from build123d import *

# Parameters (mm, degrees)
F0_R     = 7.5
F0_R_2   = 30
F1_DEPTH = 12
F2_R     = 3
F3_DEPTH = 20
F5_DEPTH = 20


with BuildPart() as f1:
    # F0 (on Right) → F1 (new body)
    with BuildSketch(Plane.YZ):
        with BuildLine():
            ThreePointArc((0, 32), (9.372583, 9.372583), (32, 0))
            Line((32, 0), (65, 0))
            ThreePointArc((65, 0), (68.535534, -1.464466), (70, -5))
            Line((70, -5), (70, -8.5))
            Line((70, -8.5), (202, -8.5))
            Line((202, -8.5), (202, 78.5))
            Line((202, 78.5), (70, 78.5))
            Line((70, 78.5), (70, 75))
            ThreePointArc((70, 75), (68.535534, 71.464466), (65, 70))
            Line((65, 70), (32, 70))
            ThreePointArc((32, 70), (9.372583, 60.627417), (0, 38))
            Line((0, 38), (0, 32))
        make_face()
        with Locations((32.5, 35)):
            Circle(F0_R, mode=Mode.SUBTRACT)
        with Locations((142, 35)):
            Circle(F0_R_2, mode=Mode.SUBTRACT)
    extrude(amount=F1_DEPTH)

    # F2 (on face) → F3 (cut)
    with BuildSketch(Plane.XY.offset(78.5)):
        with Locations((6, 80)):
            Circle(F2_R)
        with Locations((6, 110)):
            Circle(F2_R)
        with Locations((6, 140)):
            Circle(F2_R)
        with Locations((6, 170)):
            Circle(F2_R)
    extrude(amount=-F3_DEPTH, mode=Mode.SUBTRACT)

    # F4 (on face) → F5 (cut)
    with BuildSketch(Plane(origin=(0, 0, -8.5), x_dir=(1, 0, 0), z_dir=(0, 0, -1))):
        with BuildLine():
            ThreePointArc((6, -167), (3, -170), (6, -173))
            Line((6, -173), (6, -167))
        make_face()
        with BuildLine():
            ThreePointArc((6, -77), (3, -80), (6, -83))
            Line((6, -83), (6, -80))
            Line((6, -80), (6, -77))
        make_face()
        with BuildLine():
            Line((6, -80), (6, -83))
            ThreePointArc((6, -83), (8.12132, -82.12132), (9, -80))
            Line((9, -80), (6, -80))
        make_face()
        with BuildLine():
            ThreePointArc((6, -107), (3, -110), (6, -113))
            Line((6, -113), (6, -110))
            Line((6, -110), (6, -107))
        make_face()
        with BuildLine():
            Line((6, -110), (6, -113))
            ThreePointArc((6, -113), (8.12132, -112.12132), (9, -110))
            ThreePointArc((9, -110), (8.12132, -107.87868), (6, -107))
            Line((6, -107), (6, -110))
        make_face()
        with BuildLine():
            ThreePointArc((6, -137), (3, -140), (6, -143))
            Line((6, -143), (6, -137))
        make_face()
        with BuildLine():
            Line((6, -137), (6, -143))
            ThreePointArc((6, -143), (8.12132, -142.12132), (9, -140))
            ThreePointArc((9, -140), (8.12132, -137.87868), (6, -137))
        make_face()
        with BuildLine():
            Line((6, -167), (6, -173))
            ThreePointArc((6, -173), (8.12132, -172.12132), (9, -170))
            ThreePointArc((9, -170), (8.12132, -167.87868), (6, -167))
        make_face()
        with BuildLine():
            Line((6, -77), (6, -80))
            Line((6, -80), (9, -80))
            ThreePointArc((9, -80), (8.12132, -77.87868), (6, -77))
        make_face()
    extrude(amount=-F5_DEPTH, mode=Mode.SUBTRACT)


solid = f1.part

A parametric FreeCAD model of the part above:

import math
import FreeCAD as App
import Part
import Sketcher
from FreeCAD import Vector

doc = App.newDocument("Part")
body = doc.addObject("PartDesign::Body", "Body")

sketch1 = body.newObject("Sketcher::SketchObject", "Sketch")
sketch1.AttachmentSupport = (doc.getObject("YZ_Plane"), [""])
sketch1.MapMode = "FlatFace"
sketch1.addGeometry([
    Part.ArcOfCircle(Part.Circle(Vector(32, 32, 0), Vector(0, 0, 1), 32), math.radians(180), math.radians(270)),
    Part.LineSegment(Vector(32, 0, 0), Vector(65, 0, 0)),
    Part.ArcOfCircle(Part.Circle(Vector(65, -5, 0), Vector(0, 0, 1), 5), math.radians(0), math.radians(90)),
    Part.LineSegment(Vector(70, -5, 0), Vector(70, -8.5, 0)),
    Part.LineSegment(Vector(70, -8.5, 0), Vector(202, -8.5, 0)),
    Part.LineSegment(Vector(202, -8.5, 0), Vector(202, 78.5, 0)),
    Part.LineSegment(Vector(202, 78.5, 0), Vector(70, 78.5, 0)),
    Part.LineSegment(Vector(70, 78.5, 0), Vector(70, 75, 0)),
    Part.ArcOfCircle(Part.Circle(Vector(65, 75, 0), Vector(0, 0, 1), 5), math.radians(-90), math.radians(0)),
    Part.LineSegment(Vector(65, 70, 0), Vector(32, 70, 0)),
    Part.ArcOfCircle(Part.Circle(Vector(32, 38, 0), Vector(0, 0, 1), 32), math.radians(90), math.radians(180)),
    Part.LineSegment(Vector(0, 38, 0), Vector(0, 32, 0)),
    Part.Circle(Vector(32.5, 35, 0), Vector(0, 0, 1), 7.5),
    Part.Circle(Vector(142, 35, 0), Vector(0, 0, 1), 30),
], False)
sketch1.addConstraint([
    Sketcher.Constraint("Tangent", 0, 2, 1, 1),
    Sketcher.Constraint("Tangent", 1, 2, 2, 2),
    Sketcher.Constraint("Tangent", 2, 1, 3, 1),
    Sketcher.Constraint("Coincident", 3, 2, 4, 1),
    Sketcher.Constraint("Coincident", 4, 2, 5, 1),
    Sketcher.Constraint("Coincident", 5, 2, 6, 1),
    Sketcher.Constraint("Coincident", 6, 2, 7, 1),
    Sketcher.Constraint("Tangent", 7, 2, 8, 2),
    Sketcher.Constraint("Tangent", 8, 1, 9, 1),
    Sketcher.Constraint("Tangent", 9, 2, 10, 1),
    Sketcher.Constraint("Tangent", 10, 2, 11, 1),
    Sketcher.Constraint("Tangent", 11, 2, 0, 1),
    Sketcher.Constraint("Horizontal", 1),
    Sketcher.Constraint("Vertical", 3),
    Sketcher.Constraint("Horizontal", 4),
    Sketcher.Constraint("Vertical", 5),
    Sketcher.Constraint("Horizontal", 6),
    Sketcher.Constraint("Vertical", 7),
    Sketcher.Constraint("Horizontal", 9),
    Sketcher.Constraint("Vertical", 11),
    Sketcher.Constraint("Equal", 2, 8),
    Sketcher.Constraint("Equal", 0, 10),
    Sketcher.Constraint("PointOnObject", 0, 2, -1),
    Sketcher.Constraint("PointOnObject", 10, 2, -2),
    Sketcher.Constraint("Horizontal", 12, 3, 13, 3),
    Sketcher.Constraint("Vertical", 2, 3, 8, 3),
    Sketcher.Constraint("Equal", 3, 7),
    Sketcher.Constraint("Diameter", 12, 15.0),
    Sketcher.Constraint("Diameter", 13, 60.0),
    Sketcher.Constraint("Radius", 0, 32.0),
    Sketcher.Constraint("Radius", 2, 5.0),
    Sketcher.Constraint("DistanceX", 1, 1, 1, 2, 33.0),
    Sketcher.Constraint("DistanceX", 4, 1, 4, 2, 132.0),
    Sketcher.Constraint("DistanceY", 5, 1, 5, 2, 87.0),
    Sketcher.Constraint("DistanceY", 11, 2, 11, 1, 6.0),
    Sketcher.Constraint("DistanceY", -1, 1, 12, 3, 35.0),
    Sketcher.Constraint("DistanceX", -1, 1, 13, 3, 142.0),
    Sketcher.Constraint("DistanceX", -1, 1, 12, 3, 32.5),
])
pad1 = body.newObject("PartDesign::Pad", "Pad")
pad1.Profile = sketch1
pad1.Length = 12

sketch2 = body.newObject("Sketcher::SketchObject", "Sketch001")
sketch2.AttachmentSupport = (doc.getObject("XY_Plane"), [""])
sketch2.MapMode = "FlatFace"
sketch2.AttachmentOffset = App.Placement(Vector(0, 0, 78.5), App.Rotation())
sketch2.addGeometry([
    Part.Circle(Vector(6, 80, 0), Vector(0, 0, 1), 3),
    Part.Circle(Vector(6, 110, 0), Vector(0, 0, 1), 3),
    Part.Circle(Vector(6, 140, 0), Vector(0, 0, 1), 3),
    Part.Circle(Vector(6, 170, 0), Vector(0, 0, 1), 3),
], False)
sketch2.addConstraint([
    Sketcher.Constraint("Equal", 0, 1),
    Sketcher.Constraint("Equal", 1, 2),
    Sketcher.Constraint("Equal", 2, 3),
    Sketcher.Constraint("Vertical", 0, 3, 1, 3),
    Sketcher.Constraint("Vertical", 1, 3, 2, 3),
    Sketcher.Constraint("Vertical", 2, 3, 3, 3),
    Sketcher.Constraint("Diameter", 0, 6.0),
    Sketcher.Constraint("DistanceX", -1, 1, 0, 3, 6.0),
    Sketcher.Constraint("DistanceY", -1, 1, 0, 3, 80.0),
    Sketcher.Constraint("DistanceY", -1, 1, 1, 3, 110.0),
    Sketcher.Constraint("DistanceY", -1, 1, 2, 3, 140.0),
    Sketcher.Constraint("DistanceY", -1, 1, 3, 3, 170.0),
])
pocket1 = body.newObject("PartDesign::Pocket", "Pocket")
pocket1.Profile = sketch2
pocket1.Length = 20

sketch3 = body.newObject("Sketcher::SketchObject", "Sketch002")
sketch3.AttachmentSupport = (doc.getObject("XY_Plane"), [""])
sketch3.MapMode = "FlatFace"
sketch3.AttachmentOffset = App.Placement(Vector(0, 0, -8.5), App.Rotation())
sketch3.addGeometry([
    Part.ArcOfCircle(Part.Circle(Vector(6, 170, 0), Vector(0, 0, 1), 3), math.radians(90), math.radians(270)),
    Part.ArcOfCircle(Part.Circle(Vector(6, 170, 0), Vector(0, 0, 1), 3), math.radians(0), math.radians(90)),
    Part.ArcOfCircle(Part.Circle(Vector(6, 170, 0), Vector(0, 0, 1), 3), math.radians(-90), math.radians(0)),
    Part.ArcOfCircle(Part.Circle(Vector(6, 80, 0), Vector(0, 0, 1), 3), math.radians(90), math.radians(270)),
    Part.ArcOfCircle(Part.Circle(Vector(6, 80, 0), Vector(0, 0, 1), 3), math.radians(0), math.radians(90)),
    Part.ArcOfCircle(Part.Circle(Vector(6, 80, 0), Vector(0, 0, 1), 3), math.radians(-90), math.radians(0)),
    Part.ArcOfCircle(Part.Circle(Vector(6, 110, 0), Vector(0, 0, 1), 3), math.radians(90), math.radians(270)),
    Part.ArcOfCircle(Part.Circle(Vector(6, 110, 0), Vector(0, 0, 1), 3), math.radians(0), math.radians(90)),
    Part.ArcOfCircle(Part.Circle(Vector(6, 110, 0), Vector(0, 0, 1), 3), math.radians(-90), math.radians(0)),
    Part.ArcOfCircle(Part.Circle(Vector(6, 140, 0), Vector(0, 0, 1), 3), math.radians(90), math.radians(270)),
    Part.ArcOfCircle(Part.Circle(Vector(6, 140, 0), Vector(0, 0, 1), 3), math.radians(0), math.radians(90)),
    Part.ArcOfCircle(Part.Circle(Vector(6, 140, 0), Vector(0, 0, 1), 3), math.radians(-90), math.radians(0)),
], False)
sketch3.addConstraint([
    Sketcher.Constraint("Tangent", 0, 1, 1, 2),
    Sketcher.Constraint("Tangent", 1, 1, 2, 2),
    Sketcher.Constraint("Tangent", 2, 1, 0, 2),
    Sketcher.Constraint("Tangent", 3, 1, 4, 2),
    Sketcher.Constraint("Tangent", 4, 1, 5, 2),
    Sketcher.Constraint("Tangent", 5, 1, 3, 2),
    Sketcher.Constraint("Tangent", 6, 1, 7, 2),
    Sketcher.Constraint("Tangent", 7, 1, 8, 2),
    Sketcher.Constraint("Tangent", 8, 1, 6, 2),
    Sketcher.Constraint("Tangent", 9, 1, 10, 2),
    Sketcher.Constraint("Tangent", 10, 1, 11, 2),
    Sketcher.Constraint("Tangent", 11, 1, 9, 2),
    Sketcher.Constraint("Equal", 2, 3),
    Sketcher.Constraint("Equal", 5, 6),
    Sketcher.Constraint("Equal", 8, 9),
    Sketcher.Constraint("Horizontal", 2, 3, 1, 1),
    Sketcher.Constraint("Horizontal", 5, 3, 4, 1),
    Sketcher.Constraint("Horizontal", 8, 3, 7, 1),
    Sketcher.Constraint("Horizontal", 11, 3, 10, 1),
    Sketcher.Constraint("Vertical", 2, 3, 3, 3),
    Sketcher.Constraint("Vertical", 5, 3, 6, 3),
    Sketcher.Constraint("Vertical", 8, 3, 9, 3),
    Sketcher.Constraint("Vertical", 11, 3, 0, 1),
    Sketcher.Constraint("Vertical", 0, 1, 2, 1),
    Sketcher.Constraint("Vertical", 2, 1, 3, 1),
    Sketcher.Constraint("Vertical", 3, 1, 5, 1),
    Sketcher.Constraint("Vertical", 5, 1, 6, 1),
    Sketcher.Constraint("Vertical", 6, 1, 8, 1),
    Sketcher.Constraint("Vertical", 8, 1, 9, 1),
    Sketcher.Constraint("Vertical", 9, 1, 11, 1),
    Sketcher.Constraint("Radius", 0, 3.0),
    Sketcher.Constraint("DistanceX", -1, 1, 0, 3, 6.0),
    Sketcher.Constraint("DistanceY", -1, 1, 0, 3, 170.0),
    Sketcher.Constraint("DistanceY", -1, 1, 3, 3, 80.0),
    Sketcher.Constraint("DistanceY", -1, 1, 6, 3, 110.0),
    Sketcher.Constraint("DistanceY", -1, 1, 9, 3, 140.0),
])
pocket2 = body.newObject("PartDesign::Pocket", "Pocket001")
pocket2.Profile = sketch3
pocket2.Length = 20
pocket2.Reversed = True

doc.recompute()
